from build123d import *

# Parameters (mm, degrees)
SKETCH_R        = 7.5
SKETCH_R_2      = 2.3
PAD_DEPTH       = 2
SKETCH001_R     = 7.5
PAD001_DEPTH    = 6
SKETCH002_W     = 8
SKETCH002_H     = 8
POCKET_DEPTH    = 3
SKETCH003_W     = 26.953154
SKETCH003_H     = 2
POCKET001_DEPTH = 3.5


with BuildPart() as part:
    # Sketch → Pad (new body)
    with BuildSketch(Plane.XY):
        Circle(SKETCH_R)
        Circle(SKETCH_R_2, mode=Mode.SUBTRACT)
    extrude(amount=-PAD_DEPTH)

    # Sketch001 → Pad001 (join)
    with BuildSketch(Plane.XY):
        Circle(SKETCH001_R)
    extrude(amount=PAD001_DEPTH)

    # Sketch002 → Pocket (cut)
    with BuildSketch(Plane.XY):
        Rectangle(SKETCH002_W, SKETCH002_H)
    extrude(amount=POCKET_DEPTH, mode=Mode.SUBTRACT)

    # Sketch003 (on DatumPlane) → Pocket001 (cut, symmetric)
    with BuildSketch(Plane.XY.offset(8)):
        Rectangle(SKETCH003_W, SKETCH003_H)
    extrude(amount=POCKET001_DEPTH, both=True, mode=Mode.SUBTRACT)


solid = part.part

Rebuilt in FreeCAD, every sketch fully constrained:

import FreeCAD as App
import Part
import Sketcher
from FreeCAD import Vector
Q = App.Units.Quantity

doc = App.newDocument("Part")
body = doc.addObject("PartDesign::Body", "Body")

# Sketch on XY plane
sketch1 = body.newObject("Sketcher::SketchObject", "Sketch")
sketch1.AttachmentSupport = (doc.getObject("XY_Plane"), [""])
sketch1.MapMode = "FlatFace"
sketch1.addGeometry(Part.Circle(Vector(0, 0, 0), Vector(0, 0, 1), 7.5), False)
sketch1.addGeometry(Part.Circle(Vector(0, 0, 0), Vector(0, 0, 1), 2.3), False)
sketch1.addConstraint(Sketcher.Constraint("Coincident", 0, 3, -1, 1))
sketch1.addConstraint(Sketcher.Constraint("Coincident", 1, 3, -1, 1))
sketch1.addConstraint(Sketcher.Constraint("Diameter", 0, Q("15 mm")))
sketch1.addConstraint(Sketcher.Constraint("Diameter", 1, Q("4.6 mm")))
pad1 = body.newObject("PartDesign::Pad", "Pad")
pad1.Profile = sketch1
pad1.Length = 2
pad1.Reversed = True

# Sketch on XY plane
sketch2 = body.newObject("Sketcher::SketchObject", "Sketch001")
sketch2.AttachmentSupport = (doc.getObject("XY_Plane"), [""])
sketch2.MapMode = "FlatFace"
sketch2.addGeometry(Part.Circle(Vector(0, 0, 0), Vector(0, 0, 1), 8), False)
sketch2.addConstraint(Sketcher.Constraint("Coincident", 0, 3, -1, 1))
sketch2.addConstraint(Sketcher.Constraint("Diameter", 0, Q("15 mm")))
pad2 = body.newObject("PartDesign::Pad", "Pad001")
pad2.Profile = sketch2
pad2.Length = 6

# Sketch on XY plane
sketch3 = body.newObject("Sketcher::SketchObject", "Sketch002")
sketch3.AttachmentSupport = (doc.getObject("XY_Plane"), [""])
sketch3.MapMode = "FlatFace"
sketch3.addGeometry(Part.LineSegment(Vector(-4, 4, 0), Vector(-4, -4, 0)), False)
sketch3.addGeometry(Part.LineSegment(Vector(-4, -4, 0), Vector(4, -4, 0)), False)
sketch3.addGeometry(Part.LineSegment(Vector(4, -4, 0), Vector(4, 4, 0)), False)
sketch3.addGeometry(Part.LineSegment(Vector(4, 4, 0), Vector(-4, 4, 0)), False)
sketch3.addConstraint(Sketcher.Constraint("Coincident", 0, 2, 1, 1))
sketch3.addConstraint(Sketcher.Constraint("Coincident", 1, 2, 2, 1))
sketch3.addConstraint(Sketcher.Constraint("Coincident", 2, 2, 3, 1))
sketch3.addConstraint(Sketcher.Constraint("Coincident", 3, 2, 0, 1))
sketch3.addConstraint(Sketcher.Constraint("Vertical", 0))
sketch3.addConstraint(Sketcher.Constraint("Horizontal", 1))
sketch3.addConstraint(Sketcher.Constraint("Vertical", 2))
sketch3.addConstraint(Sketcher.Constraint("Horizontal", 3))
sketch3.addConstraint(Sketcher.Constraint("Symmetric", 0, 2, 2, 2, -1, 1))
sketch3.addConstraint(Sketcher.Constraint("Equal", 3, 0))
sketch3.addConstraint(Sketcher.Constraint("DistanceX", 1, 1, 1, 2, Q("8 mm")))
pocket1 = body.newObject("PartDesign::Pocket", "Pocket")
pocket1.Profile = sketch3
pocket1.Length = 3
pocket1.Reversed = True

# Sketch on XY plane
sketch4 = body.newObject("Sketcher::SketchObject", "Sketch003")
sketch4.AttachmentSupport = (doc.getObject("XY_Plane"), [""])
sketch4.MapMode = "FlatFace"
sketch4.AttachmentOffset = App.Placement(Vector(0, 0, 8), App.Rotation())
sketch4.addGeometry(Part.LineSegment(Vector(-13.5, 1, 0), Vector(-13.5, -1, 0)), False)
sketch4.addGeometry(Part.LineSegment(Vector(-13.5, -1, 0), Vector(13.5, -1, 0)), False)
sketch4.addGeometry(Part.LineSegment(Vector(13.5, -1, 0), Vector(13.5, 1, 0)), False)
sketch4.addGeometry(Part.LineSegment(Vector(13.5, 1, 0), Vector(-13.5, 1, 0)), False)
sketch4.addConstraint(Sketcher.Constraint("Coincident", 0, 2, 1, 1))
sketch4.addConstraint(Sketcher.Constraint("Coincident", 1, 2, 2, 1))
sketch4.addConstraint(Sketcher.Constraint("Coincident", 2, 2, 3, 1))
sketch4.addConstraint(Sketcher.Constraint("Coincident", 3, 2, 0, 1))
sketch4.addConstraint(Sketcher.Constraint("Vertical", 0))
sketch4.addConstraint(Sketcher.Constraint("Horizontal", 1))
sketch4.addConstraint(Sketcher.Constraint("Vertical", 2))
sketch4.addConstraint(Sketcher.Constraint("Horizontal", 3))
sketch4.addConstraint(Sketcher.Constraint("Symmetric", 0, 2, 2, 2, -1, 1))
sketch4.addConstraint(Sketcher.Constraint("DistanceY", 0, 2, 0, 1, Q("2 mm")))
sketch4.addConstraint(Sketcher.Constraint("DistanceX", 1, 1, 1, 2, Q("26.953154 mm")))
pocket2 = body.newObject("PartDesign::Pocket", "Pocket001")
pocket2.Profile = sketch4
pocket2.Length = 7
pocket2.Midplane = True

doc.recompute()
